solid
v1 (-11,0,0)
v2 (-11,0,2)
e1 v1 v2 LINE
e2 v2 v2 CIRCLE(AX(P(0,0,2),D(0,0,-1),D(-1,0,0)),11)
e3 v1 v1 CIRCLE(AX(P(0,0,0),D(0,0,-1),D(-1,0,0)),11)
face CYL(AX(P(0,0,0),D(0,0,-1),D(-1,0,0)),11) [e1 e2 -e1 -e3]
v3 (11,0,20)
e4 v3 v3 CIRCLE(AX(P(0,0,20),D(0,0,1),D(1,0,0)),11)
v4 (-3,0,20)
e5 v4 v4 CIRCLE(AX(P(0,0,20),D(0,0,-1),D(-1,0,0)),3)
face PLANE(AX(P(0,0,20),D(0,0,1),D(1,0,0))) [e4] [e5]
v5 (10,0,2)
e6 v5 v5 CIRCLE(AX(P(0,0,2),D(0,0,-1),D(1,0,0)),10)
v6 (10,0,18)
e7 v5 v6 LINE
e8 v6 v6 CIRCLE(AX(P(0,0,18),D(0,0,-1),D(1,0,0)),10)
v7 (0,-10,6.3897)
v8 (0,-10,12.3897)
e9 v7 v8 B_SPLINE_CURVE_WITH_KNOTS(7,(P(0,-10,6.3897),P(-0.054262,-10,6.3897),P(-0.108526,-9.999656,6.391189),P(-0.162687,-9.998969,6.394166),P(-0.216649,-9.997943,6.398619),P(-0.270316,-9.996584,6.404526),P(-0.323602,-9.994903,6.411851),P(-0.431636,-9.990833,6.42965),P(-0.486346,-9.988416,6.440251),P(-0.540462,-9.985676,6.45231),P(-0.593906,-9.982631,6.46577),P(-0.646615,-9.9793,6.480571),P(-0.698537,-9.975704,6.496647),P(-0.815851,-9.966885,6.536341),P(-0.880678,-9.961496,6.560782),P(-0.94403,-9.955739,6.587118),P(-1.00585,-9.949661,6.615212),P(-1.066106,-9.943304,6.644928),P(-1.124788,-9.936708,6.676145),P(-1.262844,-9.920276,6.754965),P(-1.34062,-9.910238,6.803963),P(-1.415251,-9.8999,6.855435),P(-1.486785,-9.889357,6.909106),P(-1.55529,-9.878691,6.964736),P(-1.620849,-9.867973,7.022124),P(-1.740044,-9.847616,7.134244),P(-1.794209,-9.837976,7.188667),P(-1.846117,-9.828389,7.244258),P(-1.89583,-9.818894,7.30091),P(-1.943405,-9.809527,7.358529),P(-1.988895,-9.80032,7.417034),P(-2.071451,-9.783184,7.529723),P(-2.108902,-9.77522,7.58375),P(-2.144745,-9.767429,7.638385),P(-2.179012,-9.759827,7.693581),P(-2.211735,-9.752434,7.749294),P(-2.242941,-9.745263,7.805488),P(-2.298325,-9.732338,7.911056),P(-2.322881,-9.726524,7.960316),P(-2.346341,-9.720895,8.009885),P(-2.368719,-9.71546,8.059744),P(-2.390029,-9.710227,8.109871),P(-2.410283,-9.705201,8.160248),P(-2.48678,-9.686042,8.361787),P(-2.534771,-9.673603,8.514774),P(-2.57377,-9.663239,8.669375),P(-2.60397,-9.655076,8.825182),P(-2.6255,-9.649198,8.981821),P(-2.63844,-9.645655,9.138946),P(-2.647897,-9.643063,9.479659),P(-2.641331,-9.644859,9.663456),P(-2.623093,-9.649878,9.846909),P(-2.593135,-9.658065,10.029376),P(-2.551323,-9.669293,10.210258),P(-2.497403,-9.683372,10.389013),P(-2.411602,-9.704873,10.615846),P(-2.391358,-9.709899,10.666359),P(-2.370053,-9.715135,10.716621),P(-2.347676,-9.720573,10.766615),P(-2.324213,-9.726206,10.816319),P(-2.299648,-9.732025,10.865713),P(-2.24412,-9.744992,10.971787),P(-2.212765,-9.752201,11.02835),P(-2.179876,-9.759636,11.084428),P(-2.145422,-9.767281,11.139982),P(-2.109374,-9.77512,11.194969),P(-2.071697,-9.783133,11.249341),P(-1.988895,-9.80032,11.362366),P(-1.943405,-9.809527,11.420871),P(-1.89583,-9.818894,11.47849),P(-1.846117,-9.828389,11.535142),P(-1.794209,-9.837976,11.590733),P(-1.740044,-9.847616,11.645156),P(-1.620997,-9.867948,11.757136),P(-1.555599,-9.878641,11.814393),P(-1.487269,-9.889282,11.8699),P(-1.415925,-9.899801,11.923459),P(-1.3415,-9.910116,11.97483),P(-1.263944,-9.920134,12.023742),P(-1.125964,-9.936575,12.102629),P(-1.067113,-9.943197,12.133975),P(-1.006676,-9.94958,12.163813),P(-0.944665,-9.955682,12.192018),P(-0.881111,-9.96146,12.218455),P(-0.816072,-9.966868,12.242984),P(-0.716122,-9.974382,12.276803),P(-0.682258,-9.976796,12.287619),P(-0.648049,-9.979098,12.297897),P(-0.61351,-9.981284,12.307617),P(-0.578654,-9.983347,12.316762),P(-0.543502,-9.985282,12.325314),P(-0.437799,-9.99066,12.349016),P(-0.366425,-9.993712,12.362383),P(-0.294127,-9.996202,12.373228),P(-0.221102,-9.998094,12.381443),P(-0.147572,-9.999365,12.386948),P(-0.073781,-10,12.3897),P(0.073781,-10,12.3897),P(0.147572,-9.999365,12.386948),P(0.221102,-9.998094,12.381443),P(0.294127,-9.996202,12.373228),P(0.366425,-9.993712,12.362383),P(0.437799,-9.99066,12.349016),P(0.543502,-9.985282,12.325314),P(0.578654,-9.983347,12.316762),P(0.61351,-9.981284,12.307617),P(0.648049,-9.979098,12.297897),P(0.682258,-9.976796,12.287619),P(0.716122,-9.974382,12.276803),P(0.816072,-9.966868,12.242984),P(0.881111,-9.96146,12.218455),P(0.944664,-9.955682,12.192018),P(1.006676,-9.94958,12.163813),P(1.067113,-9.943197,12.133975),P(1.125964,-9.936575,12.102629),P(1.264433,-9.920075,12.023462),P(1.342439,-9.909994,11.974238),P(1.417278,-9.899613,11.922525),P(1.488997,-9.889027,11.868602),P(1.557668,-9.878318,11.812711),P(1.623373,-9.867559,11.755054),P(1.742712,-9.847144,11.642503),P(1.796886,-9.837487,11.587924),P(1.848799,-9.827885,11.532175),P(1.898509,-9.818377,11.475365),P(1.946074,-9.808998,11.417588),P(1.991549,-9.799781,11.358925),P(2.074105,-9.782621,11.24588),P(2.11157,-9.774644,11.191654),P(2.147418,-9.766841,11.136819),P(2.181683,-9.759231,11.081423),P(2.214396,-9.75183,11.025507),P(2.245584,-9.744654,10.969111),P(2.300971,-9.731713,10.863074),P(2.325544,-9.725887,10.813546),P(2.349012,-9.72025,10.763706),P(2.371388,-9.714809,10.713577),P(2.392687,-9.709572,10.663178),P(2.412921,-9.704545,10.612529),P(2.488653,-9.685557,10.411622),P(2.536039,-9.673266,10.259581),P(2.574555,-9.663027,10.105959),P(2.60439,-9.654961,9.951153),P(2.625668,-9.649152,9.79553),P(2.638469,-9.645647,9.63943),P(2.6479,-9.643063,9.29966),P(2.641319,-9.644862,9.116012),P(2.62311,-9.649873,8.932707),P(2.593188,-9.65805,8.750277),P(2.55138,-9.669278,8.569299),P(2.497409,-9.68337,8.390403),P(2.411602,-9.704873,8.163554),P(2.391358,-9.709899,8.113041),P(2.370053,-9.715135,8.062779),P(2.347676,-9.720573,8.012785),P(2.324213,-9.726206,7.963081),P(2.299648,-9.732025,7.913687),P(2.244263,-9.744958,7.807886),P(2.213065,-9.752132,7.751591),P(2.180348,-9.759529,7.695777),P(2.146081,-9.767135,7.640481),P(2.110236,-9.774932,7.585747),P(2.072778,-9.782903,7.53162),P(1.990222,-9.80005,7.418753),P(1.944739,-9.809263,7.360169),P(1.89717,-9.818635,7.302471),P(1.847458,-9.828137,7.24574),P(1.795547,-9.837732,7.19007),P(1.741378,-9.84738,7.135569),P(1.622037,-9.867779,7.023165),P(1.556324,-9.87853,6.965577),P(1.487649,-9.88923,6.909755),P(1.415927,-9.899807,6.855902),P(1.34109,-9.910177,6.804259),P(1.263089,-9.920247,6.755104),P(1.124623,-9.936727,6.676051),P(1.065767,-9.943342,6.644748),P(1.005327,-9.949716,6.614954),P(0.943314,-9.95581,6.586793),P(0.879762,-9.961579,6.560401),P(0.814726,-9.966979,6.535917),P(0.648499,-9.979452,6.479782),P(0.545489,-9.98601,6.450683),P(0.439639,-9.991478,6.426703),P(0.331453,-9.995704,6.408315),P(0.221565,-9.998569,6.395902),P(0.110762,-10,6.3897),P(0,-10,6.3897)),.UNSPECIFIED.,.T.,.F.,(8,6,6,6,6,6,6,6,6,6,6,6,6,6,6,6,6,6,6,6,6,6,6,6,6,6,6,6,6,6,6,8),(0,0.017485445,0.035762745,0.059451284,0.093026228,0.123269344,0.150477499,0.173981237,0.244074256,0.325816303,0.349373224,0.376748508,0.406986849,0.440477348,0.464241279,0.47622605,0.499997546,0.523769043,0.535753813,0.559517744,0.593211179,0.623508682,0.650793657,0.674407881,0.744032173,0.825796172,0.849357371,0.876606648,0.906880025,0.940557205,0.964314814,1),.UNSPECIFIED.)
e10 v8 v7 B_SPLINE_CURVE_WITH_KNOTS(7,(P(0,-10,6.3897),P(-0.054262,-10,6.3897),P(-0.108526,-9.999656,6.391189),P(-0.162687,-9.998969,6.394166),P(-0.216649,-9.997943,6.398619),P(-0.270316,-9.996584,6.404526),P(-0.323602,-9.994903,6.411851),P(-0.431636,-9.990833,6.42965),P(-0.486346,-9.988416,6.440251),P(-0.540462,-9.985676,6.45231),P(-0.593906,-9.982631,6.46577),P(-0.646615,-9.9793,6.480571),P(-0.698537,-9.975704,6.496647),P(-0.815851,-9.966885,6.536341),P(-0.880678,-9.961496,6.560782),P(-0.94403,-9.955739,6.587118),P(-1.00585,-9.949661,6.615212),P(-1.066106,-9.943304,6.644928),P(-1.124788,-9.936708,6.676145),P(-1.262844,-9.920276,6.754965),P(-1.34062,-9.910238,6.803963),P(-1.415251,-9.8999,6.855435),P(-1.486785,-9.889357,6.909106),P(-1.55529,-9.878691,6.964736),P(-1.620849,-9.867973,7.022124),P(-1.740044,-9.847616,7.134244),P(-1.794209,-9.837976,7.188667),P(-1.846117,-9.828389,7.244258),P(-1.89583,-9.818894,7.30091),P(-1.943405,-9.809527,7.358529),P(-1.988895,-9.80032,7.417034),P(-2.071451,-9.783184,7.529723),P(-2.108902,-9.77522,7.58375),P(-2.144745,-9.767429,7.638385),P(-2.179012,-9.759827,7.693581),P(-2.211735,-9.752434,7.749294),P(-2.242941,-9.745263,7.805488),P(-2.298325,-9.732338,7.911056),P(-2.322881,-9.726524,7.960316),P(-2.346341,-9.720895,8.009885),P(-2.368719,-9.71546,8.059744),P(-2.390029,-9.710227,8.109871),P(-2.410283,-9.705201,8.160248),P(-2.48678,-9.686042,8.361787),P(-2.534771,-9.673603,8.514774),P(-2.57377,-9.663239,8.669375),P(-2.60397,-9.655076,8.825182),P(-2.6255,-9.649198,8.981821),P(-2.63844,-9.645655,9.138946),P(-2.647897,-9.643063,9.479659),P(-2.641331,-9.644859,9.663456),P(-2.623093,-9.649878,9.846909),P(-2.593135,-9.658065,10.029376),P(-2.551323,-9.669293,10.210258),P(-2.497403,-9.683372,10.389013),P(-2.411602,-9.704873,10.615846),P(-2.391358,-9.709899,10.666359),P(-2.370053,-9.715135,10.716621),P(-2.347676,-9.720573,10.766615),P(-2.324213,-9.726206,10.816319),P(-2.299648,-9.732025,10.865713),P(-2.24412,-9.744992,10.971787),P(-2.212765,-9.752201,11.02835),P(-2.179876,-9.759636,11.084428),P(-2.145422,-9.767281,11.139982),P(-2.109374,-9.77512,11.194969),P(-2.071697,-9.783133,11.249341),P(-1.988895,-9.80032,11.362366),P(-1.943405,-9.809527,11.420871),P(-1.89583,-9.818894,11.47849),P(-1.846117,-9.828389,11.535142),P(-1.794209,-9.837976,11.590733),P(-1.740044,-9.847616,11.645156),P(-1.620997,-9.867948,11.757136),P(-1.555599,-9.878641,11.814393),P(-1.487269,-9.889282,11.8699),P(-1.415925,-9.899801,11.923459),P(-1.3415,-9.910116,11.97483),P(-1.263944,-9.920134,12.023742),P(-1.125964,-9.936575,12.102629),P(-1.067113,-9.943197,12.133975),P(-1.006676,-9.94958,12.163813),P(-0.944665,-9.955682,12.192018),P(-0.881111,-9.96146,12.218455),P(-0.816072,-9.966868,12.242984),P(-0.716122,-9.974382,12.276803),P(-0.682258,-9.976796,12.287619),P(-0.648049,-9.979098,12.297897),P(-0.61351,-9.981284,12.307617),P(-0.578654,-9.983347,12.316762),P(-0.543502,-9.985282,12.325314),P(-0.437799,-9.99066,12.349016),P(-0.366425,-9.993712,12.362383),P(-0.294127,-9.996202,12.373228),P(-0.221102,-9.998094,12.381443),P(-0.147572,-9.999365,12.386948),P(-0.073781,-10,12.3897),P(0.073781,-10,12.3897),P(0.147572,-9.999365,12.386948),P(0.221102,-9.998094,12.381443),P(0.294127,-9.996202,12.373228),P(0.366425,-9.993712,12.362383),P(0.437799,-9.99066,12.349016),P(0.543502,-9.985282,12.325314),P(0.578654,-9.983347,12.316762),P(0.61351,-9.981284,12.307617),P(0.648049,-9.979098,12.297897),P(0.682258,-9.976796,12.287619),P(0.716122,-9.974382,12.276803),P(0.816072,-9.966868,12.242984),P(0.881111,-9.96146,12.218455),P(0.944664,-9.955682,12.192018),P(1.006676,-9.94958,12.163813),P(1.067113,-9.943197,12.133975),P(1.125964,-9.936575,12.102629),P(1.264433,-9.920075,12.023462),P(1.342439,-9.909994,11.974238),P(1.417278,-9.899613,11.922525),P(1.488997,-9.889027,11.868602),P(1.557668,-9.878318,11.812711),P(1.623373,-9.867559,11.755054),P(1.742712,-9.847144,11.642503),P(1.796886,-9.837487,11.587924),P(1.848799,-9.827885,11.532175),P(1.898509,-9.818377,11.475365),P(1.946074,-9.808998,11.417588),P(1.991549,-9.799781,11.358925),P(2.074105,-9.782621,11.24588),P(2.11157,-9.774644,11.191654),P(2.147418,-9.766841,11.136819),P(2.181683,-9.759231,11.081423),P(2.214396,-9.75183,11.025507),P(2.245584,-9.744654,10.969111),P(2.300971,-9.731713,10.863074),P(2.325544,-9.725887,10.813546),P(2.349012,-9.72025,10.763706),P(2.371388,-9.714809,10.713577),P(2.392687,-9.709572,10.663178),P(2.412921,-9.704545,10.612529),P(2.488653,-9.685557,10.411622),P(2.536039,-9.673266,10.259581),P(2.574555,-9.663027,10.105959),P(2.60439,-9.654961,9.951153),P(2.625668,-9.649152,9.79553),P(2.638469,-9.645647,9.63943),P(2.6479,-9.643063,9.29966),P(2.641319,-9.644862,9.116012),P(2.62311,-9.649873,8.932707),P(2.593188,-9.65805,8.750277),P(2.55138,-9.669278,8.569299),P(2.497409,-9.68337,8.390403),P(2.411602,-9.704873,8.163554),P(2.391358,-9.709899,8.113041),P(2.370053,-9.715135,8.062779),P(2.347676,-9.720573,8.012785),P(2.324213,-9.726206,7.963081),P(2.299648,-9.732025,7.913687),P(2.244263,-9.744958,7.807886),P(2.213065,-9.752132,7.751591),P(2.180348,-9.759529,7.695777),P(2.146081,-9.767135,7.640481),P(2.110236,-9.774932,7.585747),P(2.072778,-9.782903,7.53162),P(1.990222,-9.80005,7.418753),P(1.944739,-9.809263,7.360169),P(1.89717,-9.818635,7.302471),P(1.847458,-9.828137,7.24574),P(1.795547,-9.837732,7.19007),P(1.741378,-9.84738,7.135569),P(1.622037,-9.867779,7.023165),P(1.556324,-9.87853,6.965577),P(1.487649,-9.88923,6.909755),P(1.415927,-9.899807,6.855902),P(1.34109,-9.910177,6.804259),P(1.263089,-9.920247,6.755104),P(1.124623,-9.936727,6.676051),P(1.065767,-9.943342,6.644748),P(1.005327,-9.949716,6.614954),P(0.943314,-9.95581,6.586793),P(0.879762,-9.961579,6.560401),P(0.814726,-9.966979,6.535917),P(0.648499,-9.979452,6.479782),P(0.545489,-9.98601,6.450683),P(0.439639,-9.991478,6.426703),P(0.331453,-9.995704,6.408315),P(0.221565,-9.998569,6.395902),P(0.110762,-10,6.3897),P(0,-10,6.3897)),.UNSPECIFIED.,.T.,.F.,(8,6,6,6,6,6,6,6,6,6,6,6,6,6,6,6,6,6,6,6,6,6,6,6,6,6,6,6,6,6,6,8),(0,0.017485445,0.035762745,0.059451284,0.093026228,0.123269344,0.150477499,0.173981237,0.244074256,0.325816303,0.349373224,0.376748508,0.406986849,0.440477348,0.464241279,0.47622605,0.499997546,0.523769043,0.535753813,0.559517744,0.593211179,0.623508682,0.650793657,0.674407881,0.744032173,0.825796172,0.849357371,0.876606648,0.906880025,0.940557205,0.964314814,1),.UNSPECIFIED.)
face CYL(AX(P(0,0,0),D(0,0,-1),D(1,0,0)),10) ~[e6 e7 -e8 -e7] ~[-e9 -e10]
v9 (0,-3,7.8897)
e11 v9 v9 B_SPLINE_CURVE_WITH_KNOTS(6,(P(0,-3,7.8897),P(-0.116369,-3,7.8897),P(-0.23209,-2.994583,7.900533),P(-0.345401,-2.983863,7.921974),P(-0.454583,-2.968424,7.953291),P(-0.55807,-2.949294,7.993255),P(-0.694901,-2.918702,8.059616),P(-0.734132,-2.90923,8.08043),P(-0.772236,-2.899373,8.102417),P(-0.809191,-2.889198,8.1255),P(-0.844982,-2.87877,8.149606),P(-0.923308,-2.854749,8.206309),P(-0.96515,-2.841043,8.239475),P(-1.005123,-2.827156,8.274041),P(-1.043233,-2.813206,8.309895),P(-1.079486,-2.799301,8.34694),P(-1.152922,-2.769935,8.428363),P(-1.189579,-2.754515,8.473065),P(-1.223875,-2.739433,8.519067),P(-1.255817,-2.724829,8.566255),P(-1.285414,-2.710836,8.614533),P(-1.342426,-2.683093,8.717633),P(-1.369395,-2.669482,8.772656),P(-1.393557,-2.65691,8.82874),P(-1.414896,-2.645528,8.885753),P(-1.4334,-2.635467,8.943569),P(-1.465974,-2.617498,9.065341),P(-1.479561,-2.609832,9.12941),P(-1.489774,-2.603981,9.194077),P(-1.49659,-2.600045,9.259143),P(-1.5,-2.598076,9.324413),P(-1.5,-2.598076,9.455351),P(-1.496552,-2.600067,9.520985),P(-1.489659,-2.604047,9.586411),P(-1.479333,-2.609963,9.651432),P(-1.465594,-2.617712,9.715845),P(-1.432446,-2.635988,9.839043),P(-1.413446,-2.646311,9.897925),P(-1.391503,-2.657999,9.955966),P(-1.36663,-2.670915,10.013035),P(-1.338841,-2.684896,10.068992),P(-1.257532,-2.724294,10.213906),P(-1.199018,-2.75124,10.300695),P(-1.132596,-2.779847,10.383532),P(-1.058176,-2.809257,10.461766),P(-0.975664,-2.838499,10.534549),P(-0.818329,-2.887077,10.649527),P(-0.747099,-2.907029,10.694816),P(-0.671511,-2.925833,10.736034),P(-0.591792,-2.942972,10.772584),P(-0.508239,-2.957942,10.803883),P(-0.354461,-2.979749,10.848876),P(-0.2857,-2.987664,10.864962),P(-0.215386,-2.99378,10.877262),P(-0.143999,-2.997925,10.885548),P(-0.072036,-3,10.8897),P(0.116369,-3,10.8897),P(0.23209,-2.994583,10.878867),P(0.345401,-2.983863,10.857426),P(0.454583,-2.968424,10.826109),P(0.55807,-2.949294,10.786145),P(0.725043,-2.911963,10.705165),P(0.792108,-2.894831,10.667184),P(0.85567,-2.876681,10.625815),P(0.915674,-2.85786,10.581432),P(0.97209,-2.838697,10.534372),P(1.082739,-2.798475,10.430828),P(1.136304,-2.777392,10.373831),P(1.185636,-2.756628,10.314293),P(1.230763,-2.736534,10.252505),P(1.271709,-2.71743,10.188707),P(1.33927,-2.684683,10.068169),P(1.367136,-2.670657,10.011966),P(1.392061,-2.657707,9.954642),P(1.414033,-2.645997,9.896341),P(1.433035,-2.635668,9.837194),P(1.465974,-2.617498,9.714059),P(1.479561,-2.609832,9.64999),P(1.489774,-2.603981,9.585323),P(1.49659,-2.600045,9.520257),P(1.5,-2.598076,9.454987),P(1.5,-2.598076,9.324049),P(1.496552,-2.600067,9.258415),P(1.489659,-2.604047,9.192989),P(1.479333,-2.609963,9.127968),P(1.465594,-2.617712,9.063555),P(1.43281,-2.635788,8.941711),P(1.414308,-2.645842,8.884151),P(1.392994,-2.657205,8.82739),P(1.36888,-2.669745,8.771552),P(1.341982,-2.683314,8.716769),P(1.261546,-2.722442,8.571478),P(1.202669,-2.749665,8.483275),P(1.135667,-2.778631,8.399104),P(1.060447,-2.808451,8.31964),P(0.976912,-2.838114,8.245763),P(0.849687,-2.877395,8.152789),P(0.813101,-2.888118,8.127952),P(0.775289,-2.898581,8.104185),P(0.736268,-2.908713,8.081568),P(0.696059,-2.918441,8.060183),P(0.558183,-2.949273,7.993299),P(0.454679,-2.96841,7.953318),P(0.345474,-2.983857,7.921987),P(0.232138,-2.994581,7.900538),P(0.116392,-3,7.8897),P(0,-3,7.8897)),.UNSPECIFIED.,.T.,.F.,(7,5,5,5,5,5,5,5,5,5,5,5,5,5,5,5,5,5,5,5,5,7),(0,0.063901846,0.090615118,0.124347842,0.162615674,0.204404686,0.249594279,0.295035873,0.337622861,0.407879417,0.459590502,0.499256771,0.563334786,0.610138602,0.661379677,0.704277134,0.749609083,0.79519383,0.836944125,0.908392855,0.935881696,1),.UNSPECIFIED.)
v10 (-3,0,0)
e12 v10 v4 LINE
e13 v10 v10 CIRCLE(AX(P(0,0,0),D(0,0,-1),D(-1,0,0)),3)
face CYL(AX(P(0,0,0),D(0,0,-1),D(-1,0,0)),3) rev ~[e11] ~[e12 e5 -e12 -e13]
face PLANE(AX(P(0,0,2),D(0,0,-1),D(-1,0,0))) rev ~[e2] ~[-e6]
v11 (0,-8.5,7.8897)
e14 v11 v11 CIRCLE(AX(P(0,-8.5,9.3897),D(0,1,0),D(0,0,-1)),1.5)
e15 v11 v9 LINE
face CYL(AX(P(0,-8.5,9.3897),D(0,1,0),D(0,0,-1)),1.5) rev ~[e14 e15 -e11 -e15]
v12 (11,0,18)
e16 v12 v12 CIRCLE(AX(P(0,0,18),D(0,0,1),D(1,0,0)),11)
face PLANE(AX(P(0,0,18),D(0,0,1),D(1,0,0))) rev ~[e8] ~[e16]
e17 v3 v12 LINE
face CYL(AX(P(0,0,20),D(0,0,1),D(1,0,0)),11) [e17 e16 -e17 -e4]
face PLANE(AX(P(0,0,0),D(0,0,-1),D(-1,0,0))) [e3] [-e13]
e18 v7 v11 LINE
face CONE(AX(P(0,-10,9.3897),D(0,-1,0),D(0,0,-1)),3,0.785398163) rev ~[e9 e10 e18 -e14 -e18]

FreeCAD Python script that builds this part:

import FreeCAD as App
import Part
import Sketcher

V = App.Vector
Q = App.Units.Quantity

doc = App.newDocument("Part")
body = doc.addObject("PartDesign::Body", "Body")

# Sketch on XY plane
sketch1 = doc.addObject("Sketcher::SketchObject", "Sketch")
body.addObject(sketch1)
sketch1.AttachmentSupport = (doc.XY_Plane, [""])
sketch1.MapMode = "FlatFace"
sketch1.addGeometry(Part.Circle(V(0, 0, 0), V(0, 0, 1), 10), False)
sketch1.addConstraint(Sketcher.Constraint("Coincident", 0, 3, -1, 1))
sketch1.addConstraint(Sketcher.Constraint("Diameter", 0, Q("20 mm")))
pad1 = doc.addObject("PartDesign::Pad", "Pad")
body.addObject(pad1)
pad1.Profile = sketch1
pad1.Length = 20

# Sketch on XY plane
sketch2 = doc.addObject("Sketcher::SketchObject", "Sketch001")
body.addObject(sketch2)
sketch2.AttachmentSupport = (doc.XY_Plane, [""])
sketch2.MapMode = "FlatFace"
sketch2.AttachmentOffset = App.Placement(V(0, 0, 20), App.Rotation())
sketch2.addGeometry(Part.Circle(V(0, 0, 0), V(0, 0, 1), 11), False)
sketch2.addConstraint(Sketcher.Constraint("Coincident", 0, 3, -1, 1))
sketch2.addConstraint(Sketcher.Constraint("Diameter", 0, Q("22 mm")))
pad2 = doc.addObject("PartDesign::Pad", "Pad001")
body.addObject(pad2)
pad2.Profile = sketch2
pad2.Length = 2
pad2.Reversed = True

# Sketch on XY plane
sketch3 = doc.addObject("Sketcher::SketchObject", "Sketch002")
body.addObject(sketch3)
sketch3.AttachmentSupport = (doc.XY_Plane, [""])
sketch3.MapMode = "FlatFace"
sketch3.addGeometry(Part.Circle(V(0, 0, 0), V(0, 0, 1), 11), False)
sketch3.addConstraint(Sketcher.Constraint("Coincident", 0, 3, -1, 1))
sketch3.addConstraint(Sketcher.Constraint("Diameter", 0, Q("22 mm")))
pad3 = doc.addObject("PartDesign::Pad", "Pad002")
body.addObject(pad3)
pad3.Profile = sketch3
pad3.Length = 2

# Sketch on XZ plane
sketch4 = doc.addObject("Sketcher::SketchObject", "Sketch003")
body.addObject(sketch4)
sketch4.AttachmentSupport = (doc.XZ_Plane, [""])
sketch4.MapMode = "FlatFace"
sketch4.addGeometry(Part.Circle(V(0, 9.3897, 0), V(0, 0, 1), 1.5), False)
sketch4.addConstraint(Sketcher.Constraint("PointOnObject", 0, 3, -2))
sketch4.addConstraint(Sketcher.Constraint("Diameter", 0, Q("3 mm")))
sketch4.addConstraint(Sketcher.Constraint("DistanceY", -1, 1, 0, 3, Q("9.3897 mm")))
pad4 = doc.addObject("PartDesign::Pad", "Pad003")
body.addObject(pad4)
pad4.Profile = sketch4
pad4.Length = 10

# Sketch on XZ plane
sketch5 = doc.addObject("Sketcher::SketchObject", "Sketch004")
body.addObject(sketch5)
sketch5.AttachmentSupport = (doc.XZ_Plane, [""])
sketch5.MapMode = "FlatFace"
sketch5.AttachmentOffset = App.Placement(V(0, 0, 10), App.Rotation())
sketch5.addGeometry(Part.Circle(V(0, 9.3897, 0), V(0, 0, 1), 1.5), False)
sketch5.addConstraint(Sketcher.Constraint("PointOnObject", 0, 3, -2))
sketch5.addConstraint(Sketcher.Constraint("Diameter", 0, Q("3 mm")))
sketch5.addConstraint(Sketcher.Constraint("DistanceY", -1, 1, 0, 3, Q("9.3897 mm")))
doc.recompute()
hole = doc.addObject("PartDesign::Hole", "Hole")
body.addObject(hole)
hole.Profile = sketch5
hole.ThreadType = "None"
hole.Diameter = 3
hole.DepthType = "Dimension"
hole.Depth = 10
hole.DrillPoint = "Angled"
hole.DrillPointAngle = 118
hole.HoleCutType = "Countersink"
hole.HoleCutDiameter = 6
hole.HoleCutCountersinkAngle = 90

# Sketch on XY plane
sketch6 = doc.addObject("Sketcher::SketchObject", "Sketch005")
body.addObject(sketch6)
sketch6.AttachmentSupport = (doc.XY_Plane, [""])
sketch6.MapMode = "FlatFace"
sketch6.addGeometry(Part.Circle(V(0, 0, 0), V(0, 0, 1), 3), False)
sketch6.addConstraint(Sketcher.Constraint("Coincident", 0, 3, -1, 1))
sketch6.addConstraint(Sketcher.Constraint("Diameter", 0, Q("6 mm")))
pocket1 = doc.addObject("PartDesign::Pocket", "Pocket")
body.addObject(pocket1)
pocket1.Profile = sketch6
pocket1.Length = 20
pocket1.Reversed = True

doc.recompute()
